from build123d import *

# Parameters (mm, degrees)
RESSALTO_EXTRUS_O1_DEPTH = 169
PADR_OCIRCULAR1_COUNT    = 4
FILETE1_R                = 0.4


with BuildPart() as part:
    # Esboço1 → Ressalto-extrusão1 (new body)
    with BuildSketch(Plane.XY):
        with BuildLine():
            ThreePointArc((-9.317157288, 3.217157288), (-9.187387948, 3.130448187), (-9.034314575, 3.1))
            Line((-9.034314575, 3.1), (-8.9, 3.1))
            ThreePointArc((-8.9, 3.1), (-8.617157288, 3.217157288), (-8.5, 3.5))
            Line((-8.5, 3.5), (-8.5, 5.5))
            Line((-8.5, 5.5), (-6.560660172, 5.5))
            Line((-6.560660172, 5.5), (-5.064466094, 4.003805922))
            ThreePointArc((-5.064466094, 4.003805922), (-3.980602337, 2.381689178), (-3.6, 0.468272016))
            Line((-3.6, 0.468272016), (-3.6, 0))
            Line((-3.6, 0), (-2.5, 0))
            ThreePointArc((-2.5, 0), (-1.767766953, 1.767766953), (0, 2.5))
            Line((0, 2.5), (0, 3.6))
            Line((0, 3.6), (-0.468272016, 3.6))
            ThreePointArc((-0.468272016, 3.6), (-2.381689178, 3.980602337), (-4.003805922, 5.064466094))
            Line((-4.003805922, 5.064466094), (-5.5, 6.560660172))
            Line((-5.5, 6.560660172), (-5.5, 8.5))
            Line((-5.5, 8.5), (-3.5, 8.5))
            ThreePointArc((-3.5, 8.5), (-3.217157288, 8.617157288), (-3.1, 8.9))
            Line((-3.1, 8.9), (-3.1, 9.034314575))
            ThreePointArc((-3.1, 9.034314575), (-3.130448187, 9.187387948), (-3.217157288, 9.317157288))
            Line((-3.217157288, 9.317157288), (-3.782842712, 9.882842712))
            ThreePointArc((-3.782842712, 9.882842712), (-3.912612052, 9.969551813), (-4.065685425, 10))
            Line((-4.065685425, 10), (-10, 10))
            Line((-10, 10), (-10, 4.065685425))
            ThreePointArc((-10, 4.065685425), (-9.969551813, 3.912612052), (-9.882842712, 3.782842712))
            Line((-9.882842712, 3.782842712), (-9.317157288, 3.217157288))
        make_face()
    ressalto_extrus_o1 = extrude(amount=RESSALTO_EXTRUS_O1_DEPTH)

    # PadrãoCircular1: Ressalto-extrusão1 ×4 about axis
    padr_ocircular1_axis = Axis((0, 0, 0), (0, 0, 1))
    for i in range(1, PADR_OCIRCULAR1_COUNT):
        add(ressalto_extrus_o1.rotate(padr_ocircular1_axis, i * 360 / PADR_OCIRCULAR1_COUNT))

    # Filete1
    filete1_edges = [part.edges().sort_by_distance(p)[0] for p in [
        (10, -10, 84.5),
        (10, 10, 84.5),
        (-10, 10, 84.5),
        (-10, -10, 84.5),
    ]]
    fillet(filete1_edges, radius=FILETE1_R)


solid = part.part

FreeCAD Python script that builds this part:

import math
import FreeCAD as App
import Part
import Sketcher

V = App.Vector


def edges_at(feature, points):
    """Names of the edges that pass closest to the given points."""
    edges = feature.Shape.Edges
    near = lambda p: min(range(len(edges)), key=lambda i: edges[i].distToShape(Part.Vertex(*p))[0])
    return sorted({f"Edge{near(p) + 1}" for p in points})

doc = App.newDocument("Part")
body = doc.addObject("PartDesign::Body", "Body")

sketch1 = body.newObject("Sketcher::SketchObject", "Sketch")
sketch1.AttachmentSupport = (doc.getObject("XY_Plane"), [""])
sketch1.MapMode = "FlatFace"
sketch1.addGeometry([
    Part.ArcOfCircle(Part.Circle(V(-9.03, 3.5, 0), V(0, 0, 1), 0.4), math.radians(-135), math.radians(-90)),
    Part.LineSegment(V(-9.03, 3.1, 0), V(-8.9, 3.1, 0)),
    Part.ArcOfCircle(Part.Circle(V(-8.9, 3.5, 0), V(0, 0, 1), 0.4), math.radians(-90), math.radians(0)),
    Part.LineSegment(V(-8.5, 3.5, 0), V(-8.5, 5.5, 0)),
    Part.LineSegment(V(-8.5, 5.5, 0), V(-6.56, 5.5, 0)),
    Part.LineSegment(V(-6.56, 5.5, 0), V(-5.06, 4, 0)),
    Part.ArcOfCircle(Part.Circle(V(-8.6, 0.47, 0), V(0, 0, 1), 5), math.radians(0), math.radians(45)),
    Part.LineSegment(V(-3.6, 0.47, 0), V(-3.6, 0, 0)),
    Part.LineSegment(V(-3.6, 0, 0), V(-2.5, 0, 0)),
    Part.ArcOfCircle(Part.Circle(V(0, 0, 0), V(0, 0, 1), 2.5), math.radians(90), math.radians(180)),
    Part.LineSegment(V(0, 2.5, 0), V(0, 3.6, 0)),
    Part.LineSegment(V(0, 3.6, 0), V(-0.47, 3.6, 0)),
    Part.ArcOfCircle(Part.Circle(V(-0.47, 8.6, 0), V(0, 0, 1), 5), math.radians(-135), math.radians(-90)),
    Part.LineSegment(V(-4, 5.06, 0), V(-5.5, 6.56, 0)),
    Part.LineSegment(V(-5.5, 6.56, 0), V(-5.5, 8.5, 0)),
    Part.LineSegment(V(-5.5, 8.5, 0), V(-3.5, 8.5, 0)),
    Part.ArcOfCircle(Part.Circle(V(-3.5, 8.9, 0), V(0, 0, 1), 0.4), math.radians(-90), math.radians(0)),
    Part.LineSegment(V(-3.1, 8.9, 0), V(-3.1, 9.03, 0)),
    Part.ArcOfCircle(Part.Circle(V(-3.5, 9.03, 0), V(0, 0, 1), 0.4), math.radians(0), math.radians(45)),
    Part.LineSegment(V(-3.22, 9.32, 0), V(-3.78, 9.88, 0)),
    Part.ArcOfCircle(Part.Circle(V(-4.07, 9.6, 0), V(0, 0, 1), 0.4), math.radians(45), math.radians(90)),
    Part.LineSegment(V(-4.07, 10, 0), V(-10, 10, 0)),
    Part.LineSegment(V(-10, 10, 0), V(-10, 4.07, 0)),
    Part.ArcOfCircle(Part.Circle(V(-9.6, 4.07, 0), V(0, 0, 1), 0.4), math.radians(180), math.radians(225)),
    Part.LineSegment(V(-9.88, 3.78, 0), V(-9.32, 3.22, 0)),
], False)
sketch1.addConstraint([
    Sketcher.Constraint("Tangent", 0, 2, 1, 1),
    Sketcher.Constraint("Tangent", 1, 2, 2, 1),
    Sketcher.Constraint("Tangent", 2, 2, 3, 1),
    Sketcher.Constraint("Coincident", 3, 2, 4, 1),
    Sketcher.Constraint("Coincident", 4, 2, 5, 1),
    Sketcher.Constraint("Tangent", 5, 2, 6, 2),
    Sketcher.Constraint("Tangent", 6, 1, 7, 1),
    Sketcher.Constraint("Coincident", 7, 2, 8, 1),
    Sketcher.Constraint("Coincident", 8, 2, 9, 2),
    Sketcher.Constraint("Coincident", 9, 1, 10, 1),
    Sketcher.Constraint("Coincident", 10, 2, 11, 1),
    Sketcher.Constraint("Tangent", 11, 2, 12, 2),
    Sketcher.Constraint("Tangent", 12, 1, 13, 1),
    Sketcher.Constraint("Coincident", 13, 2, 14, 1),
    Sketcher.Constraint("Coincident", 14, 2, 15, 1),
    Sketcher.Constraint("Tangent", 15, 2, 16, 1),
    Sketcher.Constraint("Tangent", 16, 2, 17, 1),
    Sketcher.Constraint("Tangent", 17, 2, 18, 1),
    Sketcher.Constraint("Tangent", 18, 2, 19, 1),
    Sketcher.Constraint("Tangent", 19, 2, 20, 1),
    Sketcher.Constraint("Tangent", 20, 2, 21, 1),
    Sketcher.Constraint("Coincident", 21, 2, 22, 1),
    Sketcher.Constraint("Tangent", 22, 2, 23, 1),
    Sketcher.Constraint("Tangent", 23, 2, 24, 1),
    Sketcher.Constraint("Tangent", 24, 2, 0, 1),
    Sketcher.Constraint("Horizontal", 1),
    Sketcher.Constraint("Vertical", 3),
    Sketcher.Constraint("Horizontal", 4),
    Sketcher.Constraint("Vertical", 7),
    Sketcher.Constraint("Horizontal", 8),
    Sketcher.Constraint("Vertical", 10),
    Sketcher.Constraint("Horizontal", 11),
    Sketcher.Constraint("Vertical", 14),
    Sketcher.Constraint("Horizontal", 15),
    Sketcher.Constraint("Vertical", 17),
    Sketcher.Constraint("Horizontal", 21),
    Sketcher.Constraint("Vertical", 22),
    Sketcher.Constraint("Coincident", 9, 3, -1, 1),
    Sketcher.Constraint("Equal", 0, 2),
    Sketcher.Constraint("Equal", 6, 12),
    Sketcher.Constraint("Equal", 2, 16),
    Sketcher.Constraint("Equal", 16, 18),
    Sketcher.Constraint("Equal", 18, 20),
    Sketcher.Constraint("Equal", 20, 23),
    Sketcher.Constraint("PointOnObject", 7, 2, -1),
    Sketcher.Constraint("PointOnObject", 9, 1, -2),
    Sketcher.Constraint("Parallel", 5, 13),
    Sketcher.Constraint("Parallel", 13, 19),
    Sketcher.Constraint("Parallel", 19, 24),
    Sketcher.Constraint("Equal", 15, 3),
    Sketcher.Constraint("Equal", 11, 7),
    Sketcher.Constraint("Equal", 8, 10),
    Sketcher.Constraint("Equal", 4, 14),
    Sketcher.Constraint("Equal", 1, 17),
    Sketcher.Constraint("Equal", 21, 22),
    Sketcher.Constraint("Equal", 5, 13),
    Sketcher.Constraint("Equal", 19, 24),
    Sketcher.Constraint("Radius", 6, 5.0),
    Sketcher.Constraint("Radius", 0, 0.4),
    Sketcher.Constraint("Radius", 9, 2.5),
    Sketcher.Constraint("DistanceX", 15, 1, 15, 2, 2.0),
    Sketcher.Constraint("DistanceX", 8, 1, 8, 2, 1.1),
    Sketcher.Constraint("DistanceY", -1, 1, 20, 2, 10.0),
    Sketcher.Constraint("DistanceY", 4, 2, 14, 2, 3.0),
    Sketcher.Constraint("Distance", 19, 0.8),
    Sketcher.Constraint("DistanceY", -1, 1, 0, 3, 3.5),
    Sketcher.Constraint("DistanceX", 4, 1, 4, 2, 1.93934),
])
pad1 = body.newObject("PartDesign::Pad", "Pad")
pad1.Profile = sketch1
pad1.Length = 169
doc.recompute()

polarpattern = body.newObject("PartDesign::PolarPattern", "PolarPattern")
polarpattern.Originals = [pad1]
polarpattern.Axis = (doc.getObject("Z_Axis"), [""])
polarpattern.Angle = 360
polarpattern.Occurrences = 4
body.Tip = polarpattern
doc.recompute()

fillet = body.newObject("PartDesign::Fillet", "Fillet")
fillet.Base = (polarpattern, edges_at(polarpattern, [
    (10, -10, 84.5),
    (10, 10, 84.5),
    (-10, 10, 84.5),
    (-10, -10, 84.5),
]))
fillet.Radius = 0.4

doc.recompute()
